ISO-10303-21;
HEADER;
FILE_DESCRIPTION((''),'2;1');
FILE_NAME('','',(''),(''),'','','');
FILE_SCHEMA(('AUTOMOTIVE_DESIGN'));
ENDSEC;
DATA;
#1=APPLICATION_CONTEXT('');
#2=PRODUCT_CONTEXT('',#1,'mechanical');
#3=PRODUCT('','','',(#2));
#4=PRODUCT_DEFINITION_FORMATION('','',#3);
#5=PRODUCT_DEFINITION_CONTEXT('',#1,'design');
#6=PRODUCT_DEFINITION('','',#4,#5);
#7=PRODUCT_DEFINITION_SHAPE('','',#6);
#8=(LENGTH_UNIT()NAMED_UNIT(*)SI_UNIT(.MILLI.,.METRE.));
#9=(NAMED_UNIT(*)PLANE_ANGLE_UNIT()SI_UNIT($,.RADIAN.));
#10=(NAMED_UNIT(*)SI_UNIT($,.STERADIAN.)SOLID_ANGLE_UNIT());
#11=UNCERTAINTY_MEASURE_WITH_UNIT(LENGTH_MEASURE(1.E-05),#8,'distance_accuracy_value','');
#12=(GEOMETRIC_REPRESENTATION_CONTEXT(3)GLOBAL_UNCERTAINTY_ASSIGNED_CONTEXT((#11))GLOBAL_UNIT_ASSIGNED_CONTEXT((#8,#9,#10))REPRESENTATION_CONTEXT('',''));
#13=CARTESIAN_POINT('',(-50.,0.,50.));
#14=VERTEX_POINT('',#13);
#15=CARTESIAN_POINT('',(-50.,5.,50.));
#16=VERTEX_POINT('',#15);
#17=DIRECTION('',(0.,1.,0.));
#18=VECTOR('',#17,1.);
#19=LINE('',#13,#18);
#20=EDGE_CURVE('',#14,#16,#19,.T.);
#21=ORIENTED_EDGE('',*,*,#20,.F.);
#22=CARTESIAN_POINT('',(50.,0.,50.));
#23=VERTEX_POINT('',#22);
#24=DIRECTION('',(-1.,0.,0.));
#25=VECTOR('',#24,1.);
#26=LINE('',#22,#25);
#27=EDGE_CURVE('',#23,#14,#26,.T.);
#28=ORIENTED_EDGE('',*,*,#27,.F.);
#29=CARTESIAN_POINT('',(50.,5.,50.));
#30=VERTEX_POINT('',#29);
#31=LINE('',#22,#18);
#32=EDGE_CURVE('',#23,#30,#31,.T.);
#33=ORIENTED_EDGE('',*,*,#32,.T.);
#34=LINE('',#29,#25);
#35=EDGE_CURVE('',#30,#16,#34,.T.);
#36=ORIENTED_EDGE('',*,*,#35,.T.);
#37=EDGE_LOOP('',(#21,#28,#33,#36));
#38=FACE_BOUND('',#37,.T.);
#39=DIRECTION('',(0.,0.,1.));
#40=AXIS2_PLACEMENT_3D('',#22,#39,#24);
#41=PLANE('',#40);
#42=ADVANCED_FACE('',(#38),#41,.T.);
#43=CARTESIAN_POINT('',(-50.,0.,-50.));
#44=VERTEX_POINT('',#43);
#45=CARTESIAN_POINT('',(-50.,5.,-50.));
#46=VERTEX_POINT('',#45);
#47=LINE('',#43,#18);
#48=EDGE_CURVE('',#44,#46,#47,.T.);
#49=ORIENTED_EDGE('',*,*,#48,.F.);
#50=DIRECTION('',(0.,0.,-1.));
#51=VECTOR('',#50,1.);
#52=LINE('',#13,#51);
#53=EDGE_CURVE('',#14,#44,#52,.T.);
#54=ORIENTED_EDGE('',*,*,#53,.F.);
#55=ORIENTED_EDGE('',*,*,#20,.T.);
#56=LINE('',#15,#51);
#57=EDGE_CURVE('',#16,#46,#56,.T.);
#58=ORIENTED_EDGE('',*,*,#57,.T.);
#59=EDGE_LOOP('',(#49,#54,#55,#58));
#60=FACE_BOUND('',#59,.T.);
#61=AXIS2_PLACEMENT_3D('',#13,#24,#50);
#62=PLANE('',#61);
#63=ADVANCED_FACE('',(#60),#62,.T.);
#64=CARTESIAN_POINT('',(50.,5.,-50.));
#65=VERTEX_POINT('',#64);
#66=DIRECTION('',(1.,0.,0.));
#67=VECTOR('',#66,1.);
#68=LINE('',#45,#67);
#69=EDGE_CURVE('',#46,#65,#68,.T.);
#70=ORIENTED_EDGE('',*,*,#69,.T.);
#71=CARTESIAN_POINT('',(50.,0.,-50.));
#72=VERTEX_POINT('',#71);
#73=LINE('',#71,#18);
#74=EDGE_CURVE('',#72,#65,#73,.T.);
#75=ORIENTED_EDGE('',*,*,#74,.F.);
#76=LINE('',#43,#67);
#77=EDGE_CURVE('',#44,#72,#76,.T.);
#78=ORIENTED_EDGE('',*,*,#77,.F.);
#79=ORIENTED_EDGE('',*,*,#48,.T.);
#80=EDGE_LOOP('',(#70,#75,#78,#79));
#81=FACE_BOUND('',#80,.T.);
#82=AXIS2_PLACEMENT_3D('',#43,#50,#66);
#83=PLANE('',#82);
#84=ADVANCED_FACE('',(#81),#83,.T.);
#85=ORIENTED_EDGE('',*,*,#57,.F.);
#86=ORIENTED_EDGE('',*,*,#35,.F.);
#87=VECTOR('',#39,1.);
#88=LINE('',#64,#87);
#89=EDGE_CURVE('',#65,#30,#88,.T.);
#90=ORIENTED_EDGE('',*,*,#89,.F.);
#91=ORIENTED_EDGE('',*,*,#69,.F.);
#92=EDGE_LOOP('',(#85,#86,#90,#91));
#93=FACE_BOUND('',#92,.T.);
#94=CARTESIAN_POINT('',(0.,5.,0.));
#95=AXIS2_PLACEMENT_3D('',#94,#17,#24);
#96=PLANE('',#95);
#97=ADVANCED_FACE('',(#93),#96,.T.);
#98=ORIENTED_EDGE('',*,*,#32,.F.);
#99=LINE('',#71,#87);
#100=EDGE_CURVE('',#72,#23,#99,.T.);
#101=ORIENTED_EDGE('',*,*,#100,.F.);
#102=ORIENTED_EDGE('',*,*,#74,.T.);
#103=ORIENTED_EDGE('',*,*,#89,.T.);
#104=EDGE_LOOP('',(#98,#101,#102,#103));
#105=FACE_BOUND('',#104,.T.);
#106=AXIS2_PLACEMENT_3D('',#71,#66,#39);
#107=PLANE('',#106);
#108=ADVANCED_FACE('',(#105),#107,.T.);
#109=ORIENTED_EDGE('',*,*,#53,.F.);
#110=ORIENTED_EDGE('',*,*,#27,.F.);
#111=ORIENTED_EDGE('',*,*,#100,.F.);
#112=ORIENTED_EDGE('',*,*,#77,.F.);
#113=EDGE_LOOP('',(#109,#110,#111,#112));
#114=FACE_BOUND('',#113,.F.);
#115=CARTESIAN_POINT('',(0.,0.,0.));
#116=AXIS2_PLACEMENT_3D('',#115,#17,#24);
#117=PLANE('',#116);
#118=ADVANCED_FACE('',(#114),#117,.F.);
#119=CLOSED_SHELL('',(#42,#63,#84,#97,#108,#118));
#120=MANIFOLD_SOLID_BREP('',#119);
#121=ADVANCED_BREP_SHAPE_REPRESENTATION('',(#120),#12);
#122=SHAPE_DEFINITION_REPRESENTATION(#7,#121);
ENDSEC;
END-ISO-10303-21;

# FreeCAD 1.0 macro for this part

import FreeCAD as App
import Part
import Sketcher
Q = App.Units.Quantity


def add_polygon(sketch, points):
    """Adds a closed chain of lines whose ends are joined by coincident constraints."""
    first, n = sketch.GeometryCount, len(points)
    for a, b in zip(points, points[1:] + points[:1]):
        sketch.addGeometry(Part.LineSegment(App.Vector(*a, 0), App.Vector(*b, 0)), False)
    for i in range(n):
        sketch.addConstraint(Sketcher.Constraint("Coincident", first + i, 2, first + (i + 1) % n, 1))

doc = App.newDocument("Part")
body = doc.addObject("PartDesign::Body", "Body")

# Sketch on XZ plane
sketch1 = body.newObject("Sketcher::SketchObject", "Sketch")
sketch1.AttachmentSupport = (doc.getObject("XZ_Plane"), [""])
sketch1.MapMode = "FlatFace"
add_polygon(sketch1, [(-50, 50), (50, 50), (50, -50), (-50, -50)])  # lines 0-3
sketch1.addConstraint(Sketcher.Constraint("Horizontal", 0))
sketch1.addConstraint(Sketcher.Constraint("Vertical", 1))
sketch1.addConstraint(Sketcher.Constraint("Horizontal", 2))
sketch1.addConstraint(Sketcher.Constraint("Vertical", 3))
sketch1.addConstraint(Sketcher.Constraint("Symmetric", 0, 2, 2, 2, -1, 1))
sketch1.addConstraint(Sketcher.Constraint("Equal", 2, 1))
sketch1.addConstraint(Sketcher.Constraint("DistanceX", 0, 1, 0, 2, Q("100 mm")))
pad1 = body.newObject("PartDesign::Pad", "Pad")
pad1.Profile = sketch1
pad1.Length = 5
pad1.Reversed = True

doc.recompute()
